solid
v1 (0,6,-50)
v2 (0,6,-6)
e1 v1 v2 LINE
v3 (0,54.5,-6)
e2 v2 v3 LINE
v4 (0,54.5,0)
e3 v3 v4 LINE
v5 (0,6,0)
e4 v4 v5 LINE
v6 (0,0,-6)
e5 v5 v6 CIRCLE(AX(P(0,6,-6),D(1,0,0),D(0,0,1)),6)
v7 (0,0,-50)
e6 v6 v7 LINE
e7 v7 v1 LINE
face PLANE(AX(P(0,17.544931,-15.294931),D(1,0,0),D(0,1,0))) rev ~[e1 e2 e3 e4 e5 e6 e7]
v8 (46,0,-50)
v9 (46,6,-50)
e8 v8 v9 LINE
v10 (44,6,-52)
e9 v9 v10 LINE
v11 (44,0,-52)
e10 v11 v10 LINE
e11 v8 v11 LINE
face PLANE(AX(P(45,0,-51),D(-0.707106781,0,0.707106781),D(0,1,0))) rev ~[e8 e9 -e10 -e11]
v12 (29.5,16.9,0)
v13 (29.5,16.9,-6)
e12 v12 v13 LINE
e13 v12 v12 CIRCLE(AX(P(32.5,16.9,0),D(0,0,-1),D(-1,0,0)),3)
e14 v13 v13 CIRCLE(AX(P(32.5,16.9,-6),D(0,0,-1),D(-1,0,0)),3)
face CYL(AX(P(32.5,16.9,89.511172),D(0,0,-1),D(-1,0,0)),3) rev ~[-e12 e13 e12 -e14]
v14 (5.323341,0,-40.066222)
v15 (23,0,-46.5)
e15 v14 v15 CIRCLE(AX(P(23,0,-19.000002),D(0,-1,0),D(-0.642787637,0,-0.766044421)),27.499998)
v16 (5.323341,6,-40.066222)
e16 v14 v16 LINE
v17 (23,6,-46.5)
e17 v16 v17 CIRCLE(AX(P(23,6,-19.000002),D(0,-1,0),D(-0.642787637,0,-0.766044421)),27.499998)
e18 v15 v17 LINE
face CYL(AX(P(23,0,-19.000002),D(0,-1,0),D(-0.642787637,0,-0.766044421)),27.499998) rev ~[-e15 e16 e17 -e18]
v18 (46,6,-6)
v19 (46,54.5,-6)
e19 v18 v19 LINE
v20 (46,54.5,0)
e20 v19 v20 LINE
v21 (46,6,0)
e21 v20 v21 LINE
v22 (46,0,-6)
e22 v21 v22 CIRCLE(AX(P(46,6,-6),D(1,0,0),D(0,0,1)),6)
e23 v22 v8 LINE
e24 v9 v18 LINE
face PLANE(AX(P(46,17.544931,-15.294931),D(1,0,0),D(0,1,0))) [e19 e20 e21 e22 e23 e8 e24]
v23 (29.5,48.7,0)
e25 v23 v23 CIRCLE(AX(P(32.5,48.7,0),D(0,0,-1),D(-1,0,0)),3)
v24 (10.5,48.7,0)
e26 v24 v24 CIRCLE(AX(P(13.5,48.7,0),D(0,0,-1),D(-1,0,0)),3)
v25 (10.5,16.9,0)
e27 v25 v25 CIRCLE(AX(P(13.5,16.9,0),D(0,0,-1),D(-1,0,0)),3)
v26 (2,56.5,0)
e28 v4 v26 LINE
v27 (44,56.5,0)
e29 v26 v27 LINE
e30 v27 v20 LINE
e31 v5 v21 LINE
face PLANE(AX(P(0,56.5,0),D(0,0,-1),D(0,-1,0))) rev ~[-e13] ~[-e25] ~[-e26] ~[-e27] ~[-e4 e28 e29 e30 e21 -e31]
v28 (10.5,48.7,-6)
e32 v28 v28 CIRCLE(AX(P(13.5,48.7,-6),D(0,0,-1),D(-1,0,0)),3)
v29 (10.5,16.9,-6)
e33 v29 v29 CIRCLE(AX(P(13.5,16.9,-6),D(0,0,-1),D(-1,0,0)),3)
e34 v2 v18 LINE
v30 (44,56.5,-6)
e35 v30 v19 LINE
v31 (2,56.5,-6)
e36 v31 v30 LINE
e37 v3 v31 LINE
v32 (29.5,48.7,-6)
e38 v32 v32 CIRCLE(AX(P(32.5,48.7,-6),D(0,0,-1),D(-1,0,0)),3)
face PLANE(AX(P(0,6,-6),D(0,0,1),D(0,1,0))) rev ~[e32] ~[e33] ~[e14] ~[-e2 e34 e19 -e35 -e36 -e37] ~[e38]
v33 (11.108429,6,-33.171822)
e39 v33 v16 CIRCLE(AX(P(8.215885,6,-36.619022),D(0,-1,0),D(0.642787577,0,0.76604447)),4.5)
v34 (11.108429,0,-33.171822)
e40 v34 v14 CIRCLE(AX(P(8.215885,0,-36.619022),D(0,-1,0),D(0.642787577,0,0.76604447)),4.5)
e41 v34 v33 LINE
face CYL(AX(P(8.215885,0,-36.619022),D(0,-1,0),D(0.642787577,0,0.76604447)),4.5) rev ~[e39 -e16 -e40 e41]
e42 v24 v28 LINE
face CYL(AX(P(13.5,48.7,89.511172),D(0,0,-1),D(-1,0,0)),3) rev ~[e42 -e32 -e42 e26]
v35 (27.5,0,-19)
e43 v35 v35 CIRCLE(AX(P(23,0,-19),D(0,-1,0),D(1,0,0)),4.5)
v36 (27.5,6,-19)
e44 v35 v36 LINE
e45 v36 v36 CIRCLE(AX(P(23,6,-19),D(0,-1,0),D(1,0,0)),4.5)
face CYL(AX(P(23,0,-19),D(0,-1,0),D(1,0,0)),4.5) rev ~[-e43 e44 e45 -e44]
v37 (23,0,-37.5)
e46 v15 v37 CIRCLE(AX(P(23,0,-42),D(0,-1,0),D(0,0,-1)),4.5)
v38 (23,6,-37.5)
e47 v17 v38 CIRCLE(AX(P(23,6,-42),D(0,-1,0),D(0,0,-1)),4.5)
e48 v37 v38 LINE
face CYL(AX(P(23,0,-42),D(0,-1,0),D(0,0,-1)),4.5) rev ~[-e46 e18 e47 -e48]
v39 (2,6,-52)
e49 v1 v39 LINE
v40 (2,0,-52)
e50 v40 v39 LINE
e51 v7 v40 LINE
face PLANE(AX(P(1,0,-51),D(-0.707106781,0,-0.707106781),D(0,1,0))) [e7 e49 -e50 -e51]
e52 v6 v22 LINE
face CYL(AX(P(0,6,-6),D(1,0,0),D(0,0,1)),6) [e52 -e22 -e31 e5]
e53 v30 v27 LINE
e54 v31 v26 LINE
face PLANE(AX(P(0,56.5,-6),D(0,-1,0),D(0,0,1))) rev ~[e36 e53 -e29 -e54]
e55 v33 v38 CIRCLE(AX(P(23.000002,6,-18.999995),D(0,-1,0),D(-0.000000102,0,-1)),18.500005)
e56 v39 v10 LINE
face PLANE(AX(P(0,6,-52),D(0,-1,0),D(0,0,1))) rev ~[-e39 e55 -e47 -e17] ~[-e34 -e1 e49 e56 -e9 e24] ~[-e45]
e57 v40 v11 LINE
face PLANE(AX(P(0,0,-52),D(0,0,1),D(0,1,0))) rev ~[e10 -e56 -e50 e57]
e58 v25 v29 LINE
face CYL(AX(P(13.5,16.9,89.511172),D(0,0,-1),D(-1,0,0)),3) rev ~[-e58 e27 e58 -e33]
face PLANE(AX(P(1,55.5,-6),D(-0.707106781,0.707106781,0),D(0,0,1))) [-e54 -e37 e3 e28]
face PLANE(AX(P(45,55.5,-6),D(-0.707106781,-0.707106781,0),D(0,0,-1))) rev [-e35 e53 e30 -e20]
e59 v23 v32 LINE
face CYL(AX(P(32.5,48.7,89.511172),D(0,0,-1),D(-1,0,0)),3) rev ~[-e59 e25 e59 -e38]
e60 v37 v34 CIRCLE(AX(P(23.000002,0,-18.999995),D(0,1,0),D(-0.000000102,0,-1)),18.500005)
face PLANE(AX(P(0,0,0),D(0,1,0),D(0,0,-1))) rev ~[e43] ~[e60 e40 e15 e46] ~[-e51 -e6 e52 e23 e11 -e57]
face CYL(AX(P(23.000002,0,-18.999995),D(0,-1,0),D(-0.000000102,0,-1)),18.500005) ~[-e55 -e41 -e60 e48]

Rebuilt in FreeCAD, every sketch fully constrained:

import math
import FreeCAD as App
import Part
import Sketcher
Q = App.Units.Quantity


def edges_at(feature, points):
    """Names of the edges that pass closest to the given points."""
    edges = feature.Shape.Edges
    near = lambda p: min(range(len(edges)), key=lambda i: edges[i].distToShape(Part.Vertex(*p))[0])
    return sorted({f"Edge{near(p) + 1}" for p in points})


def add_polygon(sketch, points):
    """Adds a closed chain of lines whose ends are joined by coincident constraints."""
    first, n = sketch.GeometryCount, len(points)
    for a, b in zip(points, points[1:] + points[:1]):
        sketch.addGeometry(Part.LineSegment(App.Vector(*a, 0), App.Vector(*b, 0)), False)
    for i in range(n):
        sketch.addConstraint(Sketcher.Constraint("Coincident", first + i, 2, first + (i + 1) % n, 1))

doc = App.newDocument("Part")
body = doc.addObject("PartDesign::Body", "Body")

# Sketch on YZ plane
sketch1 = doc.addObject("Sketcher::SketchObject", "Sketch")
body.addObject(sketch1)
sketch1.AttachmentSupport = (doc.YZ_Plane, [""])
sketch1.MapMode = "FlatFace"
add_polygon(sketch1, [(56.5, 0), (0, 0), (0, -52), (6, -52), (6, -6), (56.5, -6)])  # lines 0-5
sketch1.addConstraint(Sketcher.Constraint("Horizontal", 0))
sketch1.addConstraint(Sketcher.Constraint("Vertical", 1))
sketch1.addConstraint(Sketcher.Constraint("Horizontal", 2))
sketch1.addConstraint(Sketcher.Constraint("Vertical", 3))
sketch1.addConstraint(Sketcher.Constraint("Horizontal", 4))
sketch1.addConstraint(Sketcher.Constraint("Vertical", 5))
sketch1.addConstraint(Sketcher.Constraint("Coincident", 0, 2, -1, 1))
sketch1.addConstraint(Sketcher.Constraint("Equal", 2, 5))
sketch1.addConstraint(Sketcher.Constraint("DistanceX", 2, 1, 2, 2, Q("6 mm")))
sketch1.addConstraint(Sketcher.Constraint("DistanceY", 1, 2, 1, 1, Q("52 mm")))
sketch1.addConstraint(Sketcher.Constraint("DistanceX", 0, 2, 0, 1, Q("56.5 mm")))
pad1 = doc.addObject("PartDesign::Pad", "Pad")
body.addObject(pad1)
pad1.Profile = sketch1
pad1.Length = 46

# Sketch on XY plane
sketch2 = doc.addObject("Sketcher::SketchObject", "Sketch001")
body.addObject(sketch2)
sketch2.AttachmentSupport = (doc.XY_Plane, [""])
sketch2.MapMode = "FlatFace"
sketch2.addGeometry(Part.Circle(App.Vector(13.5, 16.9, 0), App.Vector(0, 0, 1), 3), False)
sketch2.addGeometry(Part.Circle(App.Vector(32.5, 16.9, 0), App.Vector(0, 0, 1), 3), False)
sketch2.addGeometry(Part.Circle(App.Vector(32.5, 48.7, 0), App.Vector(0, 0, 1), 3), False)
sketch2.addGeometry(Part.Circle(App.Vector(13.5, 48.7, 0), App.Vector(0, 0, 1), 3), False)
sketch2.addConstraint(Sketcher.Constraint("Equal", 0, 1))
sketch2.addConstraint(Sketcher.Constraint("Equal", 1, 2))
sketch2.addConstraint(Sketcher.Constraint("Equal", 2, 3))
sketch2.addConstraint(Sketcher.Constraint("Horizontal", 0, 3, 1, 3))
sketch2.addConstraint(Sketcher.Constraint("Horizontal", 2, 3, 3, 3))
sketch2.addConstraint(Sketcher.Constraint("Vertical", 1, 3, 2, 3))
sketch2.addConstraint(Sketcher.Constraint("Vertical", 0, 3, 3, 3))
sketch2.addConstraint(Sketcher.Constraint("Diameter", 0, Q("6 mm")))
sketch2.addConstraint(Sketcher.Constraint("DistanceX", 0, 3, 1, 3, Q("19 mm")))
sketch2.addConstraint(Sketcher.Constraint("DistanceX", -1, 1, 0, 3, Q("13.5 mm")))
sketch2.addConstraint(Sketcher.Constraint("DistanceY", -1, 1, 0, 3, Q("16.9 mm")))
sketch2.addConstraint(Sketcher.Constraint("DistanceY", -1, 1, 2, 3, Q("48.7 mm")))
doc.recompute()
hole = doc.addObject("PartDesign::Hole", "Hole")
body.addObject(hole)
hole.Profile = sketch2
hole.ThreadType = "None"
hole.Diameter = 6
hole.DepthType = "ThroughAll"
doc.recompute()

fillet = doc.addObject("PartDesign::Fillet", "Fillet")
body.addObject(fillet)
fillet.Base = (hole, edges_at(hole, [(23, 0, 0)]))
fillet.Radius = 6
doc.recompute()

chamfer = doc.addObject("PartDesign::Chamfer", "Chamfer")
body.addObject(chamfer)
chamfer.Base = (fillet, edges_at(fillet, [
    (46, 56.5, -3),
    (0, 56.5, -3),
    (0, 3, -52),
    (46, 3, -52),
]))
chamfer.Size = 2

# Sketch on XZ plane
sketch3 = doc.addObject("Sketcher::SketchObject", "Sketch002")
body.addObject(sketch3)
sketch3.AttachmentSupport = (doc.XZ_Plane, [""])
sketch3.MapMode = "FlatFace"
sketch3.addGeometry(Part.Circle(App.Vector(23, -19, 0), App.Vector(0, 0, 1), 4.5), False)
sketch3.addGeometry(Part.ArcOfCircle(Part.Circle(App.Vector(23.000002, -18.999995, 0), App.Vector(0, 0, 1), 18.500005), math.radians(-129.999995), math.radians(-90.000006)), False)
sketch3.addGeometry(Part.ArcOfCircle(Part.Circle(App.Vector(8.215885, -36.619022, 0), App.Vector(0, 0, 1), 4.5), math.radians(50.000002), math.radians(230.000002)), False)
sketch3.addGeometry(Part.ArcOfCircle(Part.Circle(App.Vector(23, -19.000002, 0), App.Vector(0, 0, 1), 27.499998), math.radians(-130.000002), math.radians(-90)), False)
sketch3.addGeometry(Part.ArcOfCircle(Part.Circle(App.Vector(23, -42, 0), App.Vector(0, 0, 1), 4.5), math.radians(-90), math.radians(90)), False)
sketch3.addConstraint(Sketcher.Constraint("Tangent", 1, 1, 2, 1))
sketch3.addConstraint(Sketcher.Constraint("Tangent", 2, 2, 3, 1))
sketch3.addConstraint(Sketcher.Constraint("Tangent", 3, 2, 4, 1))
sketch3.addConstraint(Sketcher.Constraint("Tangent", 4, 2, 1, 2))
sketch3.addConstraint(Sketcher.Constraint("Coincident", 1, 3, 0, 3))
sketch3.addConstraint(Sketcher.Constraint("Coincident", 3, 3, 0, 3))
sketch3.addConstraint(Sketcher.Constraint("Equal", 0, 2))
sketch3.addConstraint(Sketcher.Constraint("Vertical", 3, 3, 4, 3))
sketch3.addConstraint(Sketcher.Constraint("Diameter", 0, Q("9 mm")))
sketch3.addConstraint(Sketcher.Constraint("Radius", 3, Q("27.499998 mm")))
sketch3.addConstraint(Sketcher.Constraint("DistanceX", -1, 1, 0, 3, Q("23 mm")))
sketch3.addConstraint(Sketcher.Constraint("DistanceY", 0, 3, -1, 1, Q("19 mm")))
sketch3.addConstraint(Sketcher.Constraint("DistanceY", 2, 3, 1, 1, Q("3.4472 mm")))
pocket1 = doc.addObject("PartDesign::Pocket", "Pocket")
body.addObject(pocket1)
pocket1.Profile = sketch3
pocket1.Length = 25

doc.recompute()
